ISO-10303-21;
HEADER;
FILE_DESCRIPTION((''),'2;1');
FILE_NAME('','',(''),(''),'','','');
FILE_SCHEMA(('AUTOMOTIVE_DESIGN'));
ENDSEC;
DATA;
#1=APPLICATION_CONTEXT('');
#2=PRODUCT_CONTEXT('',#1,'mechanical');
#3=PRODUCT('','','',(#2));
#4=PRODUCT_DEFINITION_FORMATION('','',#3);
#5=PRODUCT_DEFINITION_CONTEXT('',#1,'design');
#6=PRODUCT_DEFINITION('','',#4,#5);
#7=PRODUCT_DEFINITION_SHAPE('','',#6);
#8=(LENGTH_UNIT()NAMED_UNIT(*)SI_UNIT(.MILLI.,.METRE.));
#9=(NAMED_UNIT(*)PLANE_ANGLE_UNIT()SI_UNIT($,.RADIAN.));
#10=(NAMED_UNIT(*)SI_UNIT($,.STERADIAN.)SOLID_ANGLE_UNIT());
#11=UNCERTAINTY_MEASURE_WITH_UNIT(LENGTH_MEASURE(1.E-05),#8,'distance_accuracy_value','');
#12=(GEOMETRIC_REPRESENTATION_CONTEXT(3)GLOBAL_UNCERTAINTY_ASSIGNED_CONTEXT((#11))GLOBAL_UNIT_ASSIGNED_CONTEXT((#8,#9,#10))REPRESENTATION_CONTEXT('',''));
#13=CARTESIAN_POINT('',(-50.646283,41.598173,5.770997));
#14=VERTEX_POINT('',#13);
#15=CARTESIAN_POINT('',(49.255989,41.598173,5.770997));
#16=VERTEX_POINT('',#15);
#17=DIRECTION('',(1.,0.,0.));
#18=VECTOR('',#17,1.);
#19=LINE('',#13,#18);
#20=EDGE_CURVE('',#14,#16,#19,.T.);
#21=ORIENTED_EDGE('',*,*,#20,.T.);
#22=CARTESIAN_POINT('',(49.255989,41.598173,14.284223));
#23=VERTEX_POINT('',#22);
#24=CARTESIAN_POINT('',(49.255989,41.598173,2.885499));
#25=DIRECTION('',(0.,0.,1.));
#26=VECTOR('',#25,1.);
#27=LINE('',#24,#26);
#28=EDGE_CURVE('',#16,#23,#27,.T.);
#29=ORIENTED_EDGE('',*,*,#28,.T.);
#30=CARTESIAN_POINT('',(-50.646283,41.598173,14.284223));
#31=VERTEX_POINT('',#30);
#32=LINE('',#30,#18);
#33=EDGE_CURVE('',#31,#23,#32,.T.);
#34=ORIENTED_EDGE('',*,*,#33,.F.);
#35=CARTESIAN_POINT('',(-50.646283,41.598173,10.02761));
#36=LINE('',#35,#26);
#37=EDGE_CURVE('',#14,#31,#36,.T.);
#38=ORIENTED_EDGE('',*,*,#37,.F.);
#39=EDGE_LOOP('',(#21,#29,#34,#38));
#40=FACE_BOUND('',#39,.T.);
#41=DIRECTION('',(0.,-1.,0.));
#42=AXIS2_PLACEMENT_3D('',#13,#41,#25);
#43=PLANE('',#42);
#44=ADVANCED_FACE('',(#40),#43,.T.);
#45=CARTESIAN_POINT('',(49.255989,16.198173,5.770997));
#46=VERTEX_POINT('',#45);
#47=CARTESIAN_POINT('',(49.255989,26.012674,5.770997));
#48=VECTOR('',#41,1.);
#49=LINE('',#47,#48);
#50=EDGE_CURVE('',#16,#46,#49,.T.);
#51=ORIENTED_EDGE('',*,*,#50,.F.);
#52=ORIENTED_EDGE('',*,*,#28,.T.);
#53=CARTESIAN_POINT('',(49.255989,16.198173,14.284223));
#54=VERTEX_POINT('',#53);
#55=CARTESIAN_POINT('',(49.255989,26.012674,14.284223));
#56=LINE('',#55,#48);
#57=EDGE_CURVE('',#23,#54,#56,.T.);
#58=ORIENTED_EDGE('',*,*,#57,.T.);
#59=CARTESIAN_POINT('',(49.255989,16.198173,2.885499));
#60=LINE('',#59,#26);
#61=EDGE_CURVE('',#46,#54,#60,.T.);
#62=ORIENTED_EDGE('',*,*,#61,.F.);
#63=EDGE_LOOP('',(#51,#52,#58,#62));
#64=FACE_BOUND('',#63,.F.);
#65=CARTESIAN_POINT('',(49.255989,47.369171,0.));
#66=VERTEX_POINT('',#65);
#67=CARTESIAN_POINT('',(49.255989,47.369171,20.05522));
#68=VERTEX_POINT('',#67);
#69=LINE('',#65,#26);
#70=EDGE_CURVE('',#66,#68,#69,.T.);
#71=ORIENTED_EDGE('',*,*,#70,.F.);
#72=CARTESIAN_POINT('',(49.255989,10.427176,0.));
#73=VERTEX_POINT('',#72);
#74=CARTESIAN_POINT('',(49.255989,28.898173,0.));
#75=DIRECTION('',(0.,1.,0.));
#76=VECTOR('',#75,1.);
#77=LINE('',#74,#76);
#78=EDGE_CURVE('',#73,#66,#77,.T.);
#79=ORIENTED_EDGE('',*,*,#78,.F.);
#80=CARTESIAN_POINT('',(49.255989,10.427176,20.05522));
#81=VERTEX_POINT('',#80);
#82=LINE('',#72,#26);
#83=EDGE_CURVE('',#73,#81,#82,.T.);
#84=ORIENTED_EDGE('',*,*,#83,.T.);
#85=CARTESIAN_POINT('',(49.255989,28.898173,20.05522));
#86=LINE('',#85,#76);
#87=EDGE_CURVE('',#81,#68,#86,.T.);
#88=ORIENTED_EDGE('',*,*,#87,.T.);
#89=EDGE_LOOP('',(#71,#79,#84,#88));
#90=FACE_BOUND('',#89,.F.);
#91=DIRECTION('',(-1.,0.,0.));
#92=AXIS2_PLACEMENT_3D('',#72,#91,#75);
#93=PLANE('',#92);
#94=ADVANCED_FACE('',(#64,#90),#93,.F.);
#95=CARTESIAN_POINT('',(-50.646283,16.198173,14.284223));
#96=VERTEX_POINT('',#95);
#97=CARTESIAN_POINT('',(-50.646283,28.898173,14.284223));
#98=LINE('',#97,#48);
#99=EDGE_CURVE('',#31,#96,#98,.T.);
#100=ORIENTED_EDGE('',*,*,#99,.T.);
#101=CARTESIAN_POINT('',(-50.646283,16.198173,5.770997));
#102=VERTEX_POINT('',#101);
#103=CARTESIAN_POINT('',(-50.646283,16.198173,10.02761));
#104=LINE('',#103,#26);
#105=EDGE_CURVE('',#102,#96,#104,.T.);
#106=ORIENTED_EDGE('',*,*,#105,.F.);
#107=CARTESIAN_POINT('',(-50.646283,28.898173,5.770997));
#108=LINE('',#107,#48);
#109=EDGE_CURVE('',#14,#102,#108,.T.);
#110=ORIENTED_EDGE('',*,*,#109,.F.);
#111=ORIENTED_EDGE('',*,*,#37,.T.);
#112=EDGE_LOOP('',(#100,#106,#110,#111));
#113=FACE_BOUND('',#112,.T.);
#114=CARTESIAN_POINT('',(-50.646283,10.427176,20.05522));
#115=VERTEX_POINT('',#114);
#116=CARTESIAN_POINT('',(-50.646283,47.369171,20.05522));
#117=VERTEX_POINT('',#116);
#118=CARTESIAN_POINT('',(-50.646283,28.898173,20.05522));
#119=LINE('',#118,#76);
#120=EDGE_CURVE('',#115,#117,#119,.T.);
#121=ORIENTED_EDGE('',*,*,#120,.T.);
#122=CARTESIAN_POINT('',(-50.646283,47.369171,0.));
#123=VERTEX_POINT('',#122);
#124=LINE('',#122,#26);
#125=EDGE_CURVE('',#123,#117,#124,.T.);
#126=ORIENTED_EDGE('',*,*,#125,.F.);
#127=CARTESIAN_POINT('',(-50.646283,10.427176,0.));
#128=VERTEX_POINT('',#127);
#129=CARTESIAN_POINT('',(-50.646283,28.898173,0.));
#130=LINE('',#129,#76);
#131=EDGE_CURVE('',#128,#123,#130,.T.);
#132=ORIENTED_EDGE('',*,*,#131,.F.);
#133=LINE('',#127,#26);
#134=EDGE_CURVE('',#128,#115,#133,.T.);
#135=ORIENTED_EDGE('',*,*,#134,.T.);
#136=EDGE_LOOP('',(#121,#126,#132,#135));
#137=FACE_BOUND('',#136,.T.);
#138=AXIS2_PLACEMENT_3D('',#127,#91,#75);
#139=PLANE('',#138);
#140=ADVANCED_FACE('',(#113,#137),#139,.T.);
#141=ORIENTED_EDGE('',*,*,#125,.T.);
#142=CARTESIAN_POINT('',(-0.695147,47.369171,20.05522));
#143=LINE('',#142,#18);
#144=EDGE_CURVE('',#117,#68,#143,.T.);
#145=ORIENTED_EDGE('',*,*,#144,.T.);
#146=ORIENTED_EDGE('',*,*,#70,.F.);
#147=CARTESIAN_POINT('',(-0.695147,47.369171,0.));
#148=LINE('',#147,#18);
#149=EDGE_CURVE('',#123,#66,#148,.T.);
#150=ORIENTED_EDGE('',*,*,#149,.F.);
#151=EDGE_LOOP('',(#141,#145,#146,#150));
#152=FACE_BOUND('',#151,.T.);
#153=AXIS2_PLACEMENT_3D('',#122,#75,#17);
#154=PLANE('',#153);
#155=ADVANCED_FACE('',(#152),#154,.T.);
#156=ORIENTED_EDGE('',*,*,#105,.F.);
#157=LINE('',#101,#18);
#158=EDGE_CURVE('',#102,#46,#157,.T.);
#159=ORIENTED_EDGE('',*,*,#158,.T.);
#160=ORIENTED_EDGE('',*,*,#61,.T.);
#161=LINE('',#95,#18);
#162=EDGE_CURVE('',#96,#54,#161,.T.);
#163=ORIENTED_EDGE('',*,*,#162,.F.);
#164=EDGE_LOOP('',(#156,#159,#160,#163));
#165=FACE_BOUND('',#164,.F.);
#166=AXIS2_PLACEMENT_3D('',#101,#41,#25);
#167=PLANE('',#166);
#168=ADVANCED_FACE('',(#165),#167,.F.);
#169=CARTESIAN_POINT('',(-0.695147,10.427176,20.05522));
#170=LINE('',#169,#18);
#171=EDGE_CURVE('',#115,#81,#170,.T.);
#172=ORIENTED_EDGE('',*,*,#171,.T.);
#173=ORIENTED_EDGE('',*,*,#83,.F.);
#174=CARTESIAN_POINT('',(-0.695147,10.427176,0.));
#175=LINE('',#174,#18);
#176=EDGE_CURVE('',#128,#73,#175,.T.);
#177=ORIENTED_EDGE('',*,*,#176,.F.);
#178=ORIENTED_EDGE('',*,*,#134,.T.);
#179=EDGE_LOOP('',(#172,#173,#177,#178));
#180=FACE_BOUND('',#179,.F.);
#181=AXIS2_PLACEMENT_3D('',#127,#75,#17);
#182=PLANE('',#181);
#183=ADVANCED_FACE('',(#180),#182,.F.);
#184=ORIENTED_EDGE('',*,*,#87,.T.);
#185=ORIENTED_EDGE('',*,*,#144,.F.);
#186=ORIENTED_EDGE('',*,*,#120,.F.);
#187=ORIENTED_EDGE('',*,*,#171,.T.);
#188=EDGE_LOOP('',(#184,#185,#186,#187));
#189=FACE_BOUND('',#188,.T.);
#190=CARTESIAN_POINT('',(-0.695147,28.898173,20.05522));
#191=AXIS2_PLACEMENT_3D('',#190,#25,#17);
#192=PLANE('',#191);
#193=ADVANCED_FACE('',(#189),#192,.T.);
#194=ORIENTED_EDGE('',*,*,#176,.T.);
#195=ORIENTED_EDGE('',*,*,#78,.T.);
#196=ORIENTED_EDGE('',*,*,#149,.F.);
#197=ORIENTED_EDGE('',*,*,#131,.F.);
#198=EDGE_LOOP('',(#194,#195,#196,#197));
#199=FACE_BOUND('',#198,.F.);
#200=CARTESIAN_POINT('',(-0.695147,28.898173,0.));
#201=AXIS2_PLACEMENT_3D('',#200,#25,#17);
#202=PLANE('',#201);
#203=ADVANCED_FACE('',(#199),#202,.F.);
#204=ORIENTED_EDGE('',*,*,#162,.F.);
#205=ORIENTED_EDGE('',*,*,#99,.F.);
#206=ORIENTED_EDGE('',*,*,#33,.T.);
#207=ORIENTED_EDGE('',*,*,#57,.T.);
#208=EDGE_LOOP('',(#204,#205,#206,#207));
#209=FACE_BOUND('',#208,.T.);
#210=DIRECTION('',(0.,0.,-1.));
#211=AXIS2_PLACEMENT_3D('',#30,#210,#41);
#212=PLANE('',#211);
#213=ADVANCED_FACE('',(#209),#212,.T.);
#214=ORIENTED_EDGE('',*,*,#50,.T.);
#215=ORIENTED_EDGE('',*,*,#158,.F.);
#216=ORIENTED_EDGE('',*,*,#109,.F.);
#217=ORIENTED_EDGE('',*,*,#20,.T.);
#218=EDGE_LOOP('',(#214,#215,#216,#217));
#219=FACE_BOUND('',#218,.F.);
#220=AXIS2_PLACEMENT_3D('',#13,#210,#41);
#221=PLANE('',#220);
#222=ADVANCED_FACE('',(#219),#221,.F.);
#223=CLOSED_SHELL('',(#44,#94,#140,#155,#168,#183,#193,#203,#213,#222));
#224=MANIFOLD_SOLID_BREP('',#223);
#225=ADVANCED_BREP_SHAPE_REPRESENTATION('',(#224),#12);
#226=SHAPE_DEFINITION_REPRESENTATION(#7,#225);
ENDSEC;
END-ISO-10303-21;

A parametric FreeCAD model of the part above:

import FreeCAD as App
import Part
import Sketcher

V = App.Vector
Q = App.Units.Quantity

doc = App.newDocument("Part")
body = doc.addObject("PartDesign::Body", "Body")

sketch1 = doc.addObject("Sketcher::SketchObject", "Sketch")
body.addObject(sketch1)
sketch1.AttachmentSupport = (doc.XY_Plane, [""])
sketch1.MapMode = "FlatFace"
sketch1.addGeometry([
    Part.LineSegment(V(-51, 47, 0), V(-51, 10, 0)),
    Part.LineSegment(V(-51, 10, 0), V(49, 10, 0)),
    Part.LineSegment(V(49, 10, 0), V(49, 47, 0)),
    Part.LineSegment(V(49, 47, 0), V(-51, 47, 0)),
], False)
sketch1.addConstraint([
    Sketcher.Constraint("Coincident", 0, 2, 1, 1),
    Sketcher.Constraint("Coincident", 1, 2, 2, 1),
    Sketcher.Constraint("Coincident", 2, 2, 3, 1),
    Sketcher.Constraint("Coincident", 3, 2, 0, 1),
    Sketcher.Constraint("Vertical", 0),
    Sketcher.Constraint("Horizontal", 1),
    Sketcher.Constraint("Vertical", 2),
    Sketcher.Constraint("Horizontal", 3),
    Sketcher.Constraint("DistanceX", 1, 1, 1, 2, 99.902272),
    Sketcher.Constraint("DistanceY", 0, 2, 0, 1, 36.941995),
    Sketcher.Constraint("DistanceX", -1, 1, 1, 2, 49.255989),
    Sketcher.Constraint("DistanceY", -1, 1, 2, 2, 47.369171),
])
pad1 = doc.addObject("PartDesign::Pad", "Pad")
body.addObject(pad1)
pad1.Profile = sketch1
pad1.Length = 20.05522

sketch2 = doc.addObject("Sketcher::SketchObject", "Sketch001")
body.addObject(sketch2)
sketch2.AttachmentSupport = (doc.YZ_Plane, [""])
sketch2.MapMode = "FlatFace"
sketch2.AttachmentOffset = App.Placement(V(0, 0, -50.646283), App.Rotation())
sketch2.addGeometry([
    Part.LineSegment(V(42, 14, 0), V(42, 6, 0)),
    Part.LineSegment(V(42, 6, 0), V(16, 6, 0)),
    Part.LineSegment(V(16, 6, 0), V(16, 14, 0)),
    Part.LineSegment(V(16, 14, 0), V(42, 14, 0)),
], False)
sketch2.addConstraint([
    Sketcher.Constraint("Coincident", 0, 2, 1, 1),
    Sketcher.Constraint("Coincident", 1, 2, 2, 1),
    Sketcher.Constraint("Coincident", 2, 2, 3, 1),
    Sketcher.Constraint("Coincident", 3, 2, 0, 1),
    Sketcher.Constraint("Vertical", 0),
    Sketcher.Constraint("Horizontal", 1),
    Sketcher.Constraint("Vertical", 2),
    Sketcher.Constraint("Horizontal", 3),
    Sketcher.Constraint("DistanceX", 1, 2, 1, 1, Q("1 in")),
    Sketcher.Constraint("DistanceY", 0, 2, 0, 1, 8.513226),
    Sketcher.Constraint("DistanceX", -1, 1, 0, 2, 41.598173),
    Sketcher.Constraint("DistanceY", -1, 1, 0, 2, 5.770997),
])
pocket1 = doc.addObject("PartDesign::Pocket", "Pocket")
body.addObject(pocket1)
pocket1.Profile = sketch2
pocket1.Type = "ThroughAll"
pocket1.Reversed = True

doc.recompute()
